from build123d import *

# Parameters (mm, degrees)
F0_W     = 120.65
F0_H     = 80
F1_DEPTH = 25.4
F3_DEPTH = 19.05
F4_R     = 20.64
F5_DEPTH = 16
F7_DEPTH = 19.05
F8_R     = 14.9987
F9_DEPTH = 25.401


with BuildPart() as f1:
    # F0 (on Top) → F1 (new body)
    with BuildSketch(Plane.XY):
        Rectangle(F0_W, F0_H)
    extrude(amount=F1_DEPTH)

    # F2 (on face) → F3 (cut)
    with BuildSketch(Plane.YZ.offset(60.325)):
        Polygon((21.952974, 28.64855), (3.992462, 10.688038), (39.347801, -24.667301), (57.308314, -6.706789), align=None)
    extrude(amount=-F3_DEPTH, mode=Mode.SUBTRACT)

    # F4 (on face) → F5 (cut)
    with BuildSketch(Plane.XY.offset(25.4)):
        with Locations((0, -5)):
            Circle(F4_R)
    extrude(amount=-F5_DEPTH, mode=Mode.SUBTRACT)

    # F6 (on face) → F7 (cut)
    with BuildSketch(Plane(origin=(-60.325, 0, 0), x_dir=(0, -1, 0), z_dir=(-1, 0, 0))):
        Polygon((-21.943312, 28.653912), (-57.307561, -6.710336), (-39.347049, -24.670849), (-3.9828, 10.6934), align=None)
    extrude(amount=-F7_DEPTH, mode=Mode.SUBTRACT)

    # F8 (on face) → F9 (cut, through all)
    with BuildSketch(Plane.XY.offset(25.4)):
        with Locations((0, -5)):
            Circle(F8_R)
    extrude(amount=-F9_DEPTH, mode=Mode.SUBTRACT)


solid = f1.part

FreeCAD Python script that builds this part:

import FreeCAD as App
import Part
import Sketcher

V = App.Vector
Q = App.Units.Quantity

doc = App.newDocument("Part")
body = doc.addObject("PartDesign::Body", "Body")

sketch1 = body.newObject("Sketcher::SketchObject", "Sketch")
sketch1.AttachmentSupport = (doc.getObject("XY_Plane"), [""])
sketch1.MapMode = "FlatFace"
sketch1.addGeometry(Part.LineSegment(V(-60, 40, 0), V(-60, -40, 0)), False)
sketch1.addGeometry(Part.LineSegment(V(-60, -40, 0), V(60, -40, 0)), False)
sketch1.addGeometry(Part.LineSegment(V(60, -40, 0), V(60, 40, 0)), False)
sketch1.addGeometry(Part.LineSegment(V(60, 40, 0), V(-60, 40, 0)), False)
sketch1.addConstraint(Sketcher.Constraint("Coincident", 0, 2, 1, 1))
sketch1.addConstraint(Sketcher.Constraint("Coincident", 1, 2, 2, 1))
sketch1.addConstraint(Sketcher.Constraint("Coincident", 2, 2, 3, 1))
sketch1.addConstraint(Sketcher.Constraint("Coincident", 3, 2, 0, 1))
sketch1.addConstraint(Sketcher.Constraint("Vertical", 0))
sketch1.addConstraint(Sketcher.Constraint("Horizontal", 1))
sketch1.addConstraint(Sketcher.Constraint("Vertical", 2))
sketch1.addConstraint(Sketcher.Constraint("Horizontal", 3))
sketch1.addConstraint(Sketcher.Constraint("Symmetric", 0, 2, 2, 2, -1, 1))
sketch1.addConstraint(Sketcher.Constraint("DistanceX", 1, 1, 1, 2, Q("4.75 in")))
sketch1.addConstraint(Sketcher.Constraint("DistanceY", 0, 2, 0, 1, Q("80 mm")))
pad1 = body.newObject("PartDesign::Pad", "Pad")
pad1.Profile = sketch1
pad1.Length = Q("1 in")

sketch2 = body.newObject("Sketcher::SketchObject", "Sketch001")
sketch2.AttachmentSupport = (doc.getObject("YZ_Plane"), [""])
sketch2.MapMode = "FlatFace"
sketch2.AttachmentOffset = App.Placement(V(0, 0, 2.375 * 25.4), App.Rotation())
sketch2.addGeometry(Part.LineSegment(V(22, 29, 0), V(4, 11, 0)), False)
sketch2.addGeometry(Part.LineSegment(V(4, 11, 0), V(39, -25, 0)), False)
sketch2.addGeometry(Part.LineSegment(V(39, -25, 0), V(57, -7, 0)), False)
sketch2.addGeometry(Part.LineSegment(V(57, -7, 0), V(22, 29, 0)), False)
sketch2.addConstraint(Sketcher.Constraint("Coincident", 0, 2, 1, 1))
sketch2.addConstraint(Sketcher.Constraint("Coincident", 1, 2, 2, 1))
sketch2.addConstraint(Sketcher.Constraint("Coincident", 2, 2, 3, 1))
sketch2.addConstraint(Sketcher.Constraint("Coincident", 3, 2, 0, 1))
sketch2.addConstraint(Sketcher.Constraint("Perpendicular", 0, 1))
sketch2.addConstraint(Sketcher.Constraint("Perpendicular", 1, 2))
sketch2.addConstraint(Sketcher.Constraint("Perpendicular", 2, 3))
sketch2.addConstraint(Sketcher.Constraint("Distance", 0, Q("1 in")))
sketch2.addConstraint(Sketcher.Constraint("Angle", 0, Q("-135 deg")))
sketch2.addConstraint(Sketcher.Constraint("Distance", 1, Q("50 mm")))
sketch2.addConstraint(Sketcher.Constraint("DistanceX", -1, 1, 1, 2, Q("39.347801 mm")))
sketch2.addConstraint(Sketcher.Constraint("DistanceY", 1, 2, -1, 1, Q("24.667301 mm")))
pocket1 = body.newObject("PartDesign::Pocket", "Pocket")
pocket1.Profile = sketch2
pocket1.Length = Q("0.75 in")

sketch3 = body.newObject("Sketcher::SketchObject", "Sketch002")
sketch3.AttachmentSupport = (doc.getObject("XY_Plane"), [""])
sketch3.MapMode = "FlatFace"
sketch3.AttachmentOffset = App.Placement(V(0, 0, 1 * 25.4), App.Rotation())
sketch3.addGeometry(Part.Circle(V(0, -5, 0), V(0, 0, 1), 21), False)
sketch3.addConstraint(Sketcher.Constraint("PointOnObject", 0, 3, -2))
sketch3.addConstraint(Sketcher.Constraint("Diameter", 0, Q("41.28 mm")))
sketch3.addConstraint(Sketcher.Constraint("DistanceY", 0, 3, -1, 1, Q("5 mm")))
pocket2 = body.newObject("PartDesign::Pocket", "Pocket001")
pocket2.Profile = sketch3
pocket2.Length = 16

sketch4 = body.newObject("Sketcher::SketchObject", "Sketch003")
sketch4.AttachmentSupport = (doc.getObject("YZ_Plane"), [""])
sketch4.MapMode = "FlatFace"
sketch4.AttachmentOffset = App.Placement(V(0, 0, -2.375 * 25.4), App.Rotation())
sketch4.addGeometry(Part.LineSegment(V(22, 29, 0), V(57, -7, 0)), False)
sketch4.addGeometry(Part.LineSegment(V(57, -7, 0), V(39, -25, 0)), False)
sketch4.addGeometry(Part.LineSegment(V(39, -25, 0), V(4, 11, 0)), False)
sketch4.addGeometry(Part.LineSegment(V(4, 11, 0), V(22, 29, 0)), False)
sketch4.addConstraint(Sketcher.Constraint("Coincident", 0, 2, 1, 1))
sketch4.addConstraint(Sketcher.Constraint("Coincident", 1, 2, 2, 1))
sketch4.addConstraint(Sketcher.Constraint("Coincident", 2, 2, 3, 1))
sketch4.addConstraint(Sketcher.Constraint("Coincident", 3, 2, 0, 1))
sketch4.addConstraint(Sketcher.Constraint("Perpendicular", 0, 1))
sketch4.addConstraint(Sketcher.Constraint("Perpendicular", 1, 2))
sketch4.addConstraint(Sketcher.Constraint("Perpendicular", 2, 3))
sketch4.addConstraint(Sketcher.Constraint("Distance", 1, Q("1 in")))
sketch4.addConstraint(Sketcher.Constraint("Angle", 0, Q("-44.999999 deg")))
sketch4.addConstraint(Sketcher.Constraint("Distance", 0, Q("1.969 in")))
sketch4.addConstraint(Sketcher.Constraint("DistanceY", -1, 1, 2, 2, Q("0.421 in")))
sketch4.addConstraint(Sketcher.Constraint("DistanceX", -1, 1, 2, 2, Q("3.9828 mm")))
pocket3 = body.newObject("PartDesign::Pocket", "Pocket002")
pocket3.Profile = sketch4
pocket3.Length = Q("0.75 in")
pocket3.Reversed = True

sketch5 = body.newObject("Sketcher::SketchObject", "Sketch004")
sketch5.AttachmentSupport = (doc.getObject("XY_Plane"), [""])
sketch5.MapMode = "FlatFace"
sketch5.AttachmentOffset = App.Placement(V(0, 0, 1 * 25.4), App.Rotation())
sketch5.addGeometry(Part.Circle(V(0, -5, 0), V(0, 0, 1), 15), False)
sketch5.addConstraint(Sketcher.Constraint("PointOnObject", 0, 3, -2))
sketch5.addConstraint(Sketcher.Constraint("Diameter", 0, Q("1.181 in")))
sketch5.addConstraint(Sketcher.Constraint("DistanceY", 0, 3, -1, 1, Q("5 mm")))
pocket4 = body.newObject("PartDesign::Pocket", "Pocket003")
pocket4.Profile = sketch5
pocket4.Type = "ThroughAll"

doc.recompute()
